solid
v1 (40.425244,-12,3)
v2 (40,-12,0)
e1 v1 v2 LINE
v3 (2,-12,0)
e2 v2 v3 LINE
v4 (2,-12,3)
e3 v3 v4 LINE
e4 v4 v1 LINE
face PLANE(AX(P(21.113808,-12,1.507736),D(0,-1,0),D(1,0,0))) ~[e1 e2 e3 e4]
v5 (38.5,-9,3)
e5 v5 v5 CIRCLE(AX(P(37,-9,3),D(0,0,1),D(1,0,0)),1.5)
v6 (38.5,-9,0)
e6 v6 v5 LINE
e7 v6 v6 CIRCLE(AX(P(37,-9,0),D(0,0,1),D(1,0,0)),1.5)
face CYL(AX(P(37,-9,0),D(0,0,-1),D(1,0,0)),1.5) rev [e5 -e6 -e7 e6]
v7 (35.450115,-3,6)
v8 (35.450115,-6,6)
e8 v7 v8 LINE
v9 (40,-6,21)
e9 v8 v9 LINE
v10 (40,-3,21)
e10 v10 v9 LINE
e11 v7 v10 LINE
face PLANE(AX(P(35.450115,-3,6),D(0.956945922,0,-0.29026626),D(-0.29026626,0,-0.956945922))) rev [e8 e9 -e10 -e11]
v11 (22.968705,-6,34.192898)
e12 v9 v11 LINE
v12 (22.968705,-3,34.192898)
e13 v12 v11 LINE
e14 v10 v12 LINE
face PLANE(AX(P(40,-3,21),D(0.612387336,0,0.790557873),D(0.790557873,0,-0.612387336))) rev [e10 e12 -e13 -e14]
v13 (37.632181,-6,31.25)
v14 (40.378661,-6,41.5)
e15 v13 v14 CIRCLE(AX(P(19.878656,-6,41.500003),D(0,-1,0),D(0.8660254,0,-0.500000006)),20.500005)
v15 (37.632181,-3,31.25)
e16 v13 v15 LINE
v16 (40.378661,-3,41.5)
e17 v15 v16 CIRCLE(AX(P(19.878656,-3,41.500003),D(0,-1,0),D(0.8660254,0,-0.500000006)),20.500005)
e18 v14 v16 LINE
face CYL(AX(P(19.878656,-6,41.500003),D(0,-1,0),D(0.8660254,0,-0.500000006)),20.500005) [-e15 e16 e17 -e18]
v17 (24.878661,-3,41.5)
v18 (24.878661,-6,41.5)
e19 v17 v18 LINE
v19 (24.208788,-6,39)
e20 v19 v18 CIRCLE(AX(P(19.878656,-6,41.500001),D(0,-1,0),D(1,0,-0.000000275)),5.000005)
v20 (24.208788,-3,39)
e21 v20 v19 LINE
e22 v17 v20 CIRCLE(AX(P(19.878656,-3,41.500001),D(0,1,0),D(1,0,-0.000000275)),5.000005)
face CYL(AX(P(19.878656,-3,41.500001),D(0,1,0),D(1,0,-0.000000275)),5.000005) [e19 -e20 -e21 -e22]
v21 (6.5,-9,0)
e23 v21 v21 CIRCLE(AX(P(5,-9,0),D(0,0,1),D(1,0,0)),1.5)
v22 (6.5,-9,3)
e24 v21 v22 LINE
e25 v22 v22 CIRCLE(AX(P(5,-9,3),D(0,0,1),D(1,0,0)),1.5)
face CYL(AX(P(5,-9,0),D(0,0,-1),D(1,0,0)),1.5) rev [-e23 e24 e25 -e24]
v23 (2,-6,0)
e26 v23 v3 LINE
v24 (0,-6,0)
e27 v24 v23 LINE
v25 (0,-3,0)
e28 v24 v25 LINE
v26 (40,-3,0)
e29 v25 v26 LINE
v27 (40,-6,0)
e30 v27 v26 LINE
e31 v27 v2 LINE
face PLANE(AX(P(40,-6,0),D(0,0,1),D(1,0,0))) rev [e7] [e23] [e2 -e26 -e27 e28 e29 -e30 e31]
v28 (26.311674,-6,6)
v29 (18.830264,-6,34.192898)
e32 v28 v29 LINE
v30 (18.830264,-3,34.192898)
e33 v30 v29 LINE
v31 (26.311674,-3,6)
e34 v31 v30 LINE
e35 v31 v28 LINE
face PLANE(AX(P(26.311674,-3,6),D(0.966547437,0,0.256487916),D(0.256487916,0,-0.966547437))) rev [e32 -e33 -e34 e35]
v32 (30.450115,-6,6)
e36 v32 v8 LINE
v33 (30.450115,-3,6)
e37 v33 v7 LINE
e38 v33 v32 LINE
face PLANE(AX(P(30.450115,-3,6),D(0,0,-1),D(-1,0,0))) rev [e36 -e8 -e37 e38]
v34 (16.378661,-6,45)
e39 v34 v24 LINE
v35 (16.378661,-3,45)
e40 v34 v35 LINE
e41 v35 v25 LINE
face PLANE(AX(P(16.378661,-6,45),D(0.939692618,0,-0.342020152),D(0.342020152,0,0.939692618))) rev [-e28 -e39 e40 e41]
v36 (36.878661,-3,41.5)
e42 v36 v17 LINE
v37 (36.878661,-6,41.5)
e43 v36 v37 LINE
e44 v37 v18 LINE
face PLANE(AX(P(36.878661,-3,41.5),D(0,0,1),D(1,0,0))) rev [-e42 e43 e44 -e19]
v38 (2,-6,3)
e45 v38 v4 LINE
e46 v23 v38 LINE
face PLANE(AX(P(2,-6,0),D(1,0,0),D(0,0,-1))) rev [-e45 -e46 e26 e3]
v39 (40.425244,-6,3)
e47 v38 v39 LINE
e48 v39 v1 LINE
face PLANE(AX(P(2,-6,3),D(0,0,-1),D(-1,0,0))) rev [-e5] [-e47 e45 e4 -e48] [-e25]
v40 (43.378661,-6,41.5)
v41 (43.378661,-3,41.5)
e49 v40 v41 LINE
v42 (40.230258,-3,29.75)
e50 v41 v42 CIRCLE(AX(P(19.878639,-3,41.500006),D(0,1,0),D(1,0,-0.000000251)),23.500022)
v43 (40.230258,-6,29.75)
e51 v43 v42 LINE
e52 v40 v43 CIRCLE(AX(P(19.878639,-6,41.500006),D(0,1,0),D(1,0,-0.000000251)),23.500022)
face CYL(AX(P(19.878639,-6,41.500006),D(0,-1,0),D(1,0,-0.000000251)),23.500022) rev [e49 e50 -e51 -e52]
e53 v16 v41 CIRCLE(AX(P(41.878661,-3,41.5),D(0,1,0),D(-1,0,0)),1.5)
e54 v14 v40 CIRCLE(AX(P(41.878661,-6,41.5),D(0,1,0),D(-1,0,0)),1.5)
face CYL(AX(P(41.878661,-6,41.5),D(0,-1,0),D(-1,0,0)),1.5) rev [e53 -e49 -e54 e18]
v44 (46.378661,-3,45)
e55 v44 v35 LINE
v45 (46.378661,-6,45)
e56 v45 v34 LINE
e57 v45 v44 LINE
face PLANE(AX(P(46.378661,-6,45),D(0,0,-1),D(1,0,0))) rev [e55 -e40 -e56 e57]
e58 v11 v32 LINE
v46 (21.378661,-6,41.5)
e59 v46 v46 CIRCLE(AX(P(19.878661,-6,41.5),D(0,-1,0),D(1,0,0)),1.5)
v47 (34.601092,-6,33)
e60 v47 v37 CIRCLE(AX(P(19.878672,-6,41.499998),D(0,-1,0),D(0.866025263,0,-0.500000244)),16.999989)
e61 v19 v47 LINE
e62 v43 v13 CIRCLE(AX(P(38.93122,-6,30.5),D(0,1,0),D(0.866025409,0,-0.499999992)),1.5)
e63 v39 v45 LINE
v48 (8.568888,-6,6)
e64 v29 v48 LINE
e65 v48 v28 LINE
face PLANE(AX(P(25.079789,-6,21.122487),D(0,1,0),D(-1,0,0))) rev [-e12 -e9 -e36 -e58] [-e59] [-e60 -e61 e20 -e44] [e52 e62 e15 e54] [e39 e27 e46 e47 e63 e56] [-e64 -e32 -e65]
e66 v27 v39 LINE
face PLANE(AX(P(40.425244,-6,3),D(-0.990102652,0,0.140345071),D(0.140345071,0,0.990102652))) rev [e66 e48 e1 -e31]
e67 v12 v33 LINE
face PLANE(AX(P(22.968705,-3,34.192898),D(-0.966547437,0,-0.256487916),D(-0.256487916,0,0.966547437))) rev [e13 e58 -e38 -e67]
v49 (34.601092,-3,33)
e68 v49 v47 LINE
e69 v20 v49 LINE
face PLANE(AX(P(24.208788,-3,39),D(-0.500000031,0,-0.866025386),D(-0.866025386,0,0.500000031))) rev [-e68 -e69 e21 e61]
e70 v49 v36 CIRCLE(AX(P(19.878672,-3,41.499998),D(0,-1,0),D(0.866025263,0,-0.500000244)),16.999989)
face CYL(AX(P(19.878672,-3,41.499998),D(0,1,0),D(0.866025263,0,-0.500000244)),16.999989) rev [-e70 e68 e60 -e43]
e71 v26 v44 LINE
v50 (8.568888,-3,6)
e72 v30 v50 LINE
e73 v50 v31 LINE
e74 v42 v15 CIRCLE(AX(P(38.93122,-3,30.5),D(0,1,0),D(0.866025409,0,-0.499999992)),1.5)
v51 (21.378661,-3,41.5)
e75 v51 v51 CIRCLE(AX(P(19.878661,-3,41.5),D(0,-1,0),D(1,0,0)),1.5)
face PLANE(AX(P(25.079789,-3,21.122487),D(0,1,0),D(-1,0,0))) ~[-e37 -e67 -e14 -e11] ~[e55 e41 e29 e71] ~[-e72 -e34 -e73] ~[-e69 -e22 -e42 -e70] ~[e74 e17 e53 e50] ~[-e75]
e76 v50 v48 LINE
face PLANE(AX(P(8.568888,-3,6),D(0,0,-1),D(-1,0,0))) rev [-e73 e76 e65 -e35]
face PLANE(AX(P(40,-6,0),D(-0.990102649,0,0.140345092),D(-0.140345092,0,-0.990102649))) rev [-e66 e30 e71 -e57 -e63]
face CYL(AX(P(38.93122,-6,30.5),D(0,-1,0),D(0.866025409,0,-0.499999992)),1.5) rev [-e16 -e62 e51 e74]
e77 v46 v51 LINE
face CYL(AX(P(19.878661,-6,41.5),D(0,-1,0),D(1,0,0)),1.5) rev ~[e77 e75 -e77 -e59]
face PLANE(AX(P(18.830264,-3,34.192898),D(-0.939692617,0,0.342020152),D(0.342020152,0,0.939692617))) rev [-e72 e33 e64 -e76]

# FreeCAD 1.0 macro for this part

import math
import FreeCAD as App
import Part
import Sketcher

V = App.Vector
Q = App.Units.Quantity

doc = App.newDocument("Part")
body = doc.addObject("PartDesign::Body", "Body")

sketch1 = doc.addObject("Sketcher::SketchObject", "Sketch")
body.addObject(sketch1)
sketch1.AttachmentSupport = (doc.XZ_Plane, [""])
sketch1.MapMode = "FlatFace"
sketch1.addGeometry([
    Part.LineSegment(V(16.378661, 45, 0), V(0, 0, 0)),
    Part.LineSegment(V(0, 0, 0), V(40, 0, 0)),
    Part.LineSegment(V(40, 0, 0), V(46.378661, 45, 0)),
    Part.LineSegment(V(46.378661, 45, 0), V(16.378661, 45, 0)),
    Part.ArcOfCircle(Part.Circle(V(41.878661, 41.5, 0), V(0, 0, 1), 1.5), math.radians(0), math.radians(180)),
    Part.ArcOfCircle(Part.Circle(V(19.878639, 41.500006, 0), V(0, 0, 1), 23.500022), math.radians(-29.999986), math.radians(-0.000014)),
    Part.ArcOfCircle(Part.Circle(V(38.93122, 30.5, 0), V(0, 0, 1), 1.5), math.radians(150.000015), math.radians(330.000001)),
    Part.ArcOfCircle(Part.Circle(V(19.878656, 41.500003, 0), V(0, 0, 1), 20.500005), math.radians(-30), math.radians(-0.000008)),
    Part.Circle(V(19.878661, 41.5, 0), V(0, 0, 1), 1.5),
], False)
sketch1.addConstraint([
    Sketcher.Constraint("Coincident", 0, 2, 1, 1),
    Sketcher.Constraint("Coincident", 1, 2, 2, 1),
    Sketcher.Constraint("Coincident", 2, 2, 3, 1),
    Sketcher.Constraint("Coincident", 3, 2, 0, 1),
    Sketcher.Constraint("Coincident", 4, 1, 5, 2),
    Sketcher.Constraint("Coincident", 5, 1, 6, 2),
    Sketcher.Constraint("Coincident", 6, 1, 7, 1),
    Sketcher.Constraint("Coincident", 7, 2, 4, 2),
    Sketcher.Constraint("Horizontal", 1),
    Sketcher.Constraint("Horizontal", 3),
    Sketcher.Constraint("Coincident", 0, 2, -1, 1),
    Sketcher.Constraint("Coincident", 8, 3, 7, 3),
    Sketcher.Constraint("Diameter", 8, 3.0),
    Sketcher.Constraint("Radius", 4, 1.5),
    Sketcher.Constraint("Radius", 6, 1.5),
    Sketcher.Constraint("DistanceX", 1, 1, 1, 2, 40.0),
    Sketcher.Constraint("DistanceX", 3, 2, 3, 1, 30.0),
    Sketcher.Constraint("DistanceY", -1, 1, 2, 2, 45.0),
    Sketcher.Constraint("DistanceY", 6, 3, 4, 3, 11.0),
    Sketcher.Constraint("DistanceY", 6, 3, 8, 3, 11.0),
    Sketcher.Constraint("DistanceX", 8, 3, 4, 3, 22.0),
    Sketcher.Constraint("DistanceX", 4, 1, 2, 2, 3.0),
    Sketcher.Constraint("DistanceY", 6, 3, 4, 1, 11.0),
    Sketcher.Constraint("DistanceY", 6, 3, 7, 2, 11.0),
    Sketcher.Constraint("DistanceY", -1, 1, 4, 3, 41.5),
    Sketcher.Constraint("DistanceY", 5, 1, 6, 1, 1.5),
    Sketcher.Constraint("DistanceY", -1, 1, 5, 1, 29.75),
    Sketcher.Constraint("Distance", 0, 47.888),
    Sketcher.Constraint("Radius", 5, 23.500022),
])
pad1 = doc.addObject("PartDesign::Pad", "Pad")
body.addObject(pad1)
pad1.Profile = sketch1
pad1.Length = 3

sketch2 = doc.addObject("Sketcher::SketchObject", "Sketch001")
body.addObject(sketch2)
sketch2.AttachmentSupport = (doc.XZ_Plane, [""])
sketch2.MapMode = "FlatFace"
sketch2.addGeometry([
    Part.LineSegment(V(40.425244, 3, 0), V(40, 0, 0)),
    Part.LineSegment(V(40, 0, 0), V(2, 0, 0)),
    Part.LineSegment(V(2, 0, 0), V(2, 3, 0)),
    Part.LineSegment(V(2, 3, 0), V(40.425244, 3, 0)),
], False)
sketch2.addConstraint([
    Sketcher.Constraint("Coincident", 0, 2, 1, 1),
    Sketcher.Constraint("Coincident", 1, 2, 2, 1),
    Sketcher.Constraint("Coincident", 2, 2, 3, 1),
    Sketcher.Constraint("Coincident", 3, 2, 0, 1),
    Sketcher.Constraint("Horizontal", 1),
    Sketcher.Constraint("Vertical", 2),
    Sketcher.Constraint("Horizontal", 3),
    Sketcher.Constraint("PointOnObject", 0, 2, -1),
    Sketcher.Constraint("DistanceX", 1, 2, 1, 1, 38.0),
    Sketcher.Constraint("DistanceY", 2, 1, 2, 2, 3.0),
    Sketcher.Constraint("DistanceX", -1, 1, 0, 2, 40.0),
    Sketcher.Constraint("Distance", 0, 3.029989),
])
pad2 = doc.addObject("PartDesign::Pad", "Pad001")
body.addObject(pad2)
pad2.Profile = sketch2
pad2.Length = 6
pad2.Reversed = True

sketch3 = doc.addObject("Sketcher::SketchObject", "Sketch002")
body.addObject(sketch3)
sketch3.AttachmentSupport = (doc.XY_Plane, [""])
sketch3.MapMode = "FlatFace"
sketch3.addGeometry([
    Part.Circle(V(37, 3, 0), V(0, 0, 1), 1.5),
    Part.Circle(V(5, 3, 0), V(0, 0, 1), 1.5),
], False)
sketch3.addConstraint([
    Sketcher.Constraint("Equal", 0, 1),
    Sketcher.Constraint("Horizontal", 0, 3, 1, 3),
    Sketcher.Constraint("Diameter", 0, 3.0),
    Sketcher.Constraint("DistanceX", -1, 1, 0, 3, 37.0),
    Sketcher.Constraint("DistanceY", -1, 1, 0, 3, 3.0),
    Sketcher.Constraint("DistanceX", -1, 1, 1, 3, 5.0),
])
pocket1 = doc.addObject("PartDesign::Pocket", "Pocket")
body.addObject(pocket1)
pocket1.Profile = sketch3
pocket1.Length = 25
pocket1.Reversed = True

sketch4 = doc.addObject("Sketcher::SketchObject", "Sketch003")
body.addObject(sketch4)
sketch4.AttachmentSupport = (doc.XZ_Plane, [""])
sketch4.MapMode = "FlatFace"
sketch4.AttachmentOffset = App.Placement(V(0, 0, 3), App.Rotation())
sketch4.addGeometry([
    Part.LineSegment(V(18.830264, 34.192898, 0), V(8.568888, 6, 0)),
    Part.LineSegment(V(8.568888, 6, 0), V(26.311674, 6, 0)),
    Part.LineSegment(V(26.311674, 6, 0), V(18.830264, 34.192898, 0)),
    Part.LineSegment(V(40, 21, 0), V(22.968705, 34.192898, 0)),
    Part.LineSegment(V(22.968705, 34.192898, 0), V(30.450115, 6, 0)),
    Part.LineSegment(V(30.450115, 6, 0), V(35.450115, 6, 0)),
    Part.LineSegment(V(35.450115, 6, 0), V(40, 21, 0)),
    Part.ArcOfCircle(Part.Circle(V(19.878656, 41.500001, 0), V(0, 0, 1), 5.000005), math.radians(-29.999985), math.radians(-0.000016)),
    Part.LineSegment(V(24.208788, 39, 0), V(34.601092, 33, 0)),
    Part.ArcOfCircle(Part.Circle(V(19.878672, 41.499998, 0), V(0, 0, 1), 16.999989), math.radians(-30.000016), math.radians(0.000005)),
    Part.LineSegment(V(36.878661, 41.5, 0), V(24.878661, 41.5, 0)),
], False)
sketch4.addConstraint([
    Sketcher.Constraint("Coincident", 0, 2, 1, 1),
    Sketcher.Constraint("Coincident", 1, 2, 2, 1),
    Sketcher.Constraint("Coincident", 2, 2, 0, 1),
    Sketcher.Constraint("Coincident", 3, 2, 4, 1),
    Sketcher.Constraint("Coincident", 4, 2, 5, 1),
    Sketcher.Constraint("Coincident", 5, 2, 6, 1),
    Sketcher.Constraint("Coincident", 6, 2, 3, 1),
    Sketcher.Constraint("Coincident", 7, 1, 8, 1),
    Sketcher.Constraint("Coincident", 8, 2, 9, 1),
    Sketcher.Constraint("Coincident", 9, 2, 10, 1),
    Sketcher.Constraint("Coincident", 10, 2, 7, 2),
    Sketcher.Constraint("Horizontal", 1),
    Sketcher.Constraint("Horizontal", 5),
    Sketcher.Constraint("Horizontal", 10),
    Sketcher.Constraint("Parallel", 2, 4),
    Sketcher.Constraint("Horizontal", 2, 2, 3, 2),
    Sketcher.Constraint("Horizontal", 1, 2, 4, 2),
    Sketcher.Constraint("Horizontal", 7, 3, 9, 2),
    Sketcher.Constraint("DistanceX", 5, 1, 5, 2, 5.0),
    Sketcher.Constraint("DistanceX", 10, 2, 10, 1, 12.0),
    Sketcher.Constraint("Angle", 0, Q("-110.000001 deg")),
    Sketcher.Constraint("Angle", 8, Q("-30.000002 deg")),
    Sketcher.Constraint("Distance", 8, 11.999999),
    Sketcher.Constraint("DistanceY", -1, 1, 0, 2, 6.0),
    Sketcher.Constraint("DistanceX", -1, 1, 6, 2, 40.0),
    Sketcher.Constraint("DistanceY", -1, 1, 6, 2, 21.0),
    Sketcher.Constraint("DistanceY", -1, 1, 7, 1, 39.0),
    Sketcher.Constraint("DistanceY", -1, 1, 7, 3, 41.500001),
    Sketcher.Constraint("DistanceY", -1, 1, 9, 3, 41.499998),
    Sketcher.Constraint("Radius", 9, 16.999989),
    Sketcher.Constraint("DistanceX", 9, 3, 1, 2, 6.433002),
    Sketcher.Constraint("DistanceY", 2, 2, 9, 3, 7.3071),
    Sketcher.Constraint("Distance", 3, 21.543388),
    Sketcher.Constraint("DistanceX", 1, 1, 1, 2, 17.742786),
    Sketcher.Constraint("DistanceX", -1, 1, 7, 1, 24.208788),
])
pocket2 = doc.addObject("PartDesign::Pocket", "Pocket001")
body.addObject(pocket2)
pocket2.Profile = sketch4
pocket2.Length = 25
body2 = doc.addObject("PartDesign::Body", "Body001")
doc.recompute()

mirroring = doc.addObject("Part::Mirroring", "Mirroring")
mirroring.Source = body
mirroring.Base = V(24.806781, -3, 21.611158)
mirroring.Normal = V(0, -1, 0)
body2.BaseFeature = mirroring
doc.recompute()
body.Visibility = False
mirroring.Visibility = False

doc.recompute()
